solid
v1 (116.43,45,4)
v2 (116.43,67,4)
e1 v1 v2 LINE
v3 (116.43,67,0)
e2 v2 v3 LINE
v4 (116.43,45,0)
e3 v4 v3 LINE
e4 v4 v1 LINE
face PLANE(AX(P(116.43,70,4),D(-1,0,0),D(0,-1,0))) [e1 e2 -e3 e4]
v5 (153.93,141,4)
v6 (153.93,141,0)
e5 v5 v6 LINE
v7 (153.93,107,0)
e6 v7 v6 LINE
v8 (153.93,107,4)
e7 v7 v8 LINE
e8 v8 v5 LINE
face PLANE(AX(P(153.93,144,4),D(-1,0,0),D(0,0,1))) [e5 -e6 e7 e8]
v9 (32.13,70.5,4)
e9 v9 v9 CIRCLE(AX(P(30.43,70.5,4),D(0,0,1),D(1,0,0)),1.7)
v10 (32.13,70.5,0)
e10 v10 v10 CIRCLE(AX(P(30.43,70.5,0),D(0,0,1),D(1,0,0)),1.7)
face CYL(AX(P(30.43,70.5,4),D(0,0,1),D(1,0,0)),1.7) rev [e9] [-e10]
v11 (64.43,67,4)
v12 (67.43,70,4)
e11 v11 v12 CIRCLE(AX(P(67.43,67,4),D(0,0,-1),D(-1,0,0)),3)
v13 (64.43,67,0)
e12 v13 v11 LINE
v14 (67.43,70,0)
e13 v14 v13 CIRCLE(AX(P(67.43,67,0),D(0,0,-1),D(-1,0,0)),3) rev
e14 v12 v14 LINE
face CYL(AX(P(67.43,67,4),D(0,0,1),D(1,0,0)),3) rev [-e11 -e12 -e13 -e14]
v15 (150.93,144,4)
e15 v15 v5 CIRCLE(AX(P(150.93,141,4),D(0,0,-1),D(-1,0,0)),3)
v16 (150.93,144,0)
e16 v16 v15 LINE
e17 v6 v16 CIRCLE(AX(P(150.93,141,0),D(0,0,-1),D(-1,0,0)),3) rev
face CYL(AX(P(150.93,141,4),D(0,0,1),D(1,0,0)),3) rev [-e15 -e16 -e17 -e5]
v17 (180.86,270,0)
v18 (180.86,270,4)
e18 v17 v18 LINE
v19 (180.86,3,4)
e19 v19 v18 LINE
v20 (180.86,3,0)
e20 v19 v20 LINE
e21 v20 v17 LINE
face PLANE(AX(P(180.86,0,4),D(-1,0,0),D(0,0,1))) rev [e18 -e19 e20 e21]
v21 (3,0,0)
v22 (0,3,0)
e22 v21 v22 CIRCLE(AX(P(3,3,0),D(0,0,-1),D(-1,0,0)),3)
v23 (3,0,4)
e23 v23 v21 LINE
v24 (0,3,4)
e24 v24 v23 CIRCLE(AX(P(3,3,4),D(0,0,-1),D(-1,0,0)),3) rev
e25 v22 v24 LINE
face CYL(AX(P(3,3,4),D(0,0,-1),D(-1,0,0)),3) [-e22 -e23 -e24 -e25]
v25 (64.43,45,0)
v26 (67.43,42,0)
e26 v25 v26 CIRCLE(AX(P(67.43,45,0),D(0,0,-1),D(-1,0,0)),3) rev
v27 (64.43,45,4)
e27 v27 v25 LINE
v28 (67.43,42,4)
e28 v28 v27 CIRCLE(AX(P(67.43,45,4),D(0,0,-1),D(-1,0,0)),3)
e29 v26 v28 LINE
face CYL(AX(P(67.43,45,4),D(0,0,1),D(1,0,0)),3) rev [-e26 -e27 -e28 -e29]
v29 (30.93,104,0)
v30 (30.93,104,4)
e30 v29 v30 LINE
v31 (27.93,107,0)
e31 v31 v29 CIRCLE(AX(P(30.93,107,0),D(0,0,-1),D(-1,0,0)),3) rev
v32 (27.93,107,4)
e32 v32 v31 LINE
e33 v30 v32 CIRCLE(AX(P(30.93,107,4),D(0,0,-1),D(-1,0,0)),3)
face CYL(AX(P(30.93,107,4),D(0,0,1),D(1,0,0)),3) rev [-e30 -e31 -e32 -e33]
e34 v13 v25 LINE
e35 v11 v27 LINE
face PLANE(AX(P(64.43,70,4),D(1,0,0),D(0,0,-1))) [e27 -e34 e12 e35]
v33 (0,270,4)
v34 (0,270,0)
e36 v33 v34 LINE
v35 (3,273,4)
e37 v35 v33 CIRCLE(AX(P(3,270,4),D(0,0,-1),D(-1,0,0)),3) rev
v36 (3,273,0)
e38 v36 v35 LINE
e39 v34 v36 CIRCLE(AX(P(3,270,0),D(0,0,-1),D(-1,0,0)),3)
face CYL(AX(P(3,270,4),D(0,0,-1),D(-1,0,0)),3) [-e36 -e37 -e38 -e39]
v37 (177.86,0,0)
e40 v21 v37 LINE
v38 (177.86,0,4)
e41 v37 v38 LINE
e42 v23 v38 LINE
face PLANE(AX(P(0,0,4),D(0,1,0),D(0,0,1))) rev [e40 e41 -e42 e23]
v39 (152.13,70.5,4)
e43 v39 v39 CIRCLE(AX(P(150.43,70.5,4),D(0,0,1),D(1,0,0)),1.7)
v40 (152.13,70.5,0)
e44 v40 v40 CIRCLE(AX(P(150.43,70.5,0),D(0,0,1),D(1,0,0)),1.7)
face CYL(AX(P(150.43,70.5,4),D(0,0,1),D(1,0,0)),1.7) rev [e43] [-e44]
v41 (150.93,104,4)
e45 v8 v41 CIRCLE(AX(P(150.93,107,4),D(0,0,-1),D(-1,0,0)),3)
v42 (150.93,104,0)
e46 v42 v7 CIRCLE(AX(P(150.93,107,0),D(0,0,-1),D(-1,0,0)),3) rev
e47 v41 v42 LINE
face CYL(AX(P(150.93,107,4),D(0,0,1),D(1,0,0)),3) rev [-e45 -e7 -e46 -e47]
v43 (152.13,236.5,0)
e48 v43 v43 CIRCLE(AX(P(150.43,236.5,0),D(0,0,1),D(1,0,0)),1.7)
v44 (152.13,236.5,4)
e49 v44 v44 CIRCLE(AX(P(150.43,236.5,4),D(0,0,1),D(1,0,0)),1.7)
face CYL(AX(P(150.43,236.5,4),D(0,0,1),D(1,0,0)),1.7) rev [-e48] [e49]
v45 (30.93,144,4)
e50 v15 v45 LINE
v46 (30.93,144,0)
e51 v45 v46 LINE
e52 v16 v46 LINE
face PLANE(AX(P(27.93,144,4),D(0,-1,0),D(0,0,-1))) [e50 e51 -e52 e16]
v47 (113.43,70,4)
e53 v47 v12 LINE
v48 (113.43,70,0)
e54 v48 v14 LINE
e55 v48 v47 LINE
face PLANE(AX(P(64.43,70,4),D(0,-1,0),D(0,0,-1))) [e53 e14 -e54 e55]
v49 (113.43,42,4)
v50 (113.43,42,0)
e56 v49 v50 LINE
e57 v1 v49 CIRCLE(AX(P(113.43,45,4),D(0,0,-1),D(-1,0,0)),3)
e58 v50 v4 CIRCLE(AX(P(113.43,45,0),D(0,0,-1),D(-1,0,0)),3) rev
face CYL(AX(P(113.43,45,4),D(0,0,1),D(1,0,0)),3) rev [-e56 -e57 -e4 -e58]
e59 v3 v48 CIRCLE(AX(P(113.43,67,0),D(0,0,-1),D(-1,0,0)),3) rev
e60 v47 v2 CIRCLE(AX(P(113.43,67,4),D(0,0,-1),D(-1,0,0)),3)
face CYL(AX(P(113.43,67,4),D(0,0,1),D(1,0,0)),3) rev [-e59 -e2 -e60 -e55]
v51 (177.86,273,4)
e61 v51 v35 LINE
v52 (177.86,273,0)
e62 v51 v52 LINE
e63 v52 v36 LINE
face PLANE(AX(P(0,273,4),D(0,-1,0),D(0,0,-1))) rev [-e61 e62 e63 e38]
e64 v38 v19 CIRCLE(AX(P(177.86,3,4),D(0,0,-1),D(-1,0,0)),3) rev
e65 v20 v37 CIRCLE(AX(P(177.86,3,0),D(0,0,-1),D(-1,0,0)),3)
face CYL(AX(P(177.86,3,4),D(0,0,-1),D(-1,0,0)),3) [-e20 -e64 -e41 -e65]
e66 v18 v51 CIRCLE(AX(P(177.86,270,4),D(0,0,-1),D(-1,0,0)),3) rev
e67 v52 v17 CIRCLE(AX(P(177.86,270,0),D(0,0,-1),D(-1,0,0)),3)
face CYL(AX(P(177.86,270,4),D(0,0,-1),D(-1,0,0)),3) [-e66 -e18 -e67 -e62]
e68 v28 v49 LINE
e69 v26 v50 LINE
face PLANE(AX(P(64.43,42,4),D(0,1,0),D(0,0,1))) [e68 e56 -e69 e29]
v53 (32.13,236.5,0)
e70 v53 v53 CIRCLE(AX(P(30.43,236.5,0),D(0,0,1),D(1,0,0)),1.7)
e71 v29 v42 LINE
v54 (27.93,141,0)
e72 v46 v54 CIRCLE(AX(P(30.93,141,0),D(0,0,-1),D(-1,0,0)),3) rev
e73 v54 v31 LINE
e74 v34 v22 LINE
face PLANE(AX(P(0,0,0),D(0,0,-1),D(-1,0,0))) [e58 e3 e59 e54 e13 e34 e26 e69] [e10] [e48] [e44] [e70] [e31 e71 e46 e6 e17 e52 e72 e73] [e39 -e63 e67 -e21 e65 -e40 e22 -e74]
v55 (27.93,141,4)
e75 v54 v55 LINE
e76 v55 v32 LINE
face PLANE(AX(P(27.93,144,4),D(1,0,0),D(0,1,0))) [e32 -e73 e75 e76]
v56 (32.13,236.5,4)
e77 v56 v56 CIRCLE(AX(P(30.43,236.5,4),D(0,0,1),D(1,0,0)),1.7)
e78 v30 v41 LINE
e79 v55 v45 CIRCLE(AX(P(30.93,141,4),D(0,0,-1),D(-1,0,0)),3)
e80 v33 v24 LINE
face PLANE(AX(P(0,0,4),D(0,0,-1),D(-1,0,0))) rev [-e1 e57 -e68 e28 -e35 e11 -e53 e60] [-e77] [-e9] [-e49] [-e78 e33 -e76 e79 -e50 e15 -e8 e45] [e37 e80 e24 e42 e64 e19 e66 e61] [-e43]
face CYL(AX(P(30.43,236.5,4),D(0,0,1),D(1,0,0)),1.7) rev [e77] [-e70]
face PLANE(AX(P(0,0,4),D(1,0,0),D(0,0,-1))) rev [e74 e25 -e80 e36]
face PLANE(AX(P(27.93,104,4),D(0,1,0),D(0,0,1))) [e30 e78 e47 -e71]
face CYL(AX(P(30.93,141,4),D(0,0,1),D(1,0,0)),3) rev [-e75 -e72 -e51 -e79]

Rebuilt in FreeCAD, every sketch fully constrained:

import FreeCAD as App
import Part
import Sketcher


def edges_at(feature, points):
    """Names of the edges that pass closest to the given points."""
    edges = feature.Shape.Edges
    near = lambda p: min(range(len(edges)), key=lambda i: edges[i].distToShape(Part.Vertex(*p))[0])
    return sorted({f"Edge{near(p) + 1}" for p in points})

doc = App.newDocument("Part")
body = doc.addObject("PartDesign::Body", "Body")

sketch1 = body.newObject("Sketcher::SketchObject", "Sketch")
sketch1.AttachmentSupport = (doc.getObject("XY_Plane"), [""])
sketch1.MapMode = "FlatFace"
sketch1.addGeometry([
    Part.LineSegment(App.Vector(0, 273, 0), App.Vector(0, 0, 0)),
    Part.LineSegment(App.Vector(0, 0, 0), App.Vector(180.9, 0, 0)),
    Part.LineSegment(App.Vector(180.9, 0, 0), App.Vector(180.9, 273, 0)),
    Part.LineSegment(App.Vector(180.9, 273, 0), App.Vector(0, 273, 0)),
    Part.Circle(App.Vector(30.4, 70.5, 0), App.Vector(0, 0, 1), 1.5),
    Part.LineSegment(App.Vector(116.4, 42, 0), App.Vector(64.4, 42, 0)),
    Part.LineSegment(App.Vector(64.4, 42, 0), App.Vector(64.4, 70, 0)),
    Part.LineSegment(App.Vector(64.4, 70, 0), App.Vector(116.4, 70, 0)),
    Part.LineSegment(App.Vector(116.4, 70, 0), App.Vector(116.4, 42, 0)),
    Part.Circle(App.Vector(150.4, 70.5, 0), App.Vector(0, 0, 1), 1.5),
    Part.LineSegment(App.Vector(153.9, 104, 0), App.Vector(27.9, 104, 0)),
    Part.LineSegment(App.Vector(27.9, 104, 0), App.Vector(27.9, 144, 0)),
    Part.LineSegment(App.Vector(27.9, 144, 0), App.Vector(153.9, 144, 0)),
    Part.LineSegment(App.Vector(153.9, 144, 0), App.Vector(153.9, 104, 0)),
    Part.Circle(App.Vector(30.4, 236.5, 0), App.Vector(0, 0, 1), 1.5),
    Part.Circle(App.Vector(150.4, 236.5, 0), App.Vector(0, 0, 1), 1.5),
], False)
sketch1.addConstraint([
    Sketcher.Constraint("Coincident", 0, 2, 1, 1),
    Sketcher.Constraint("Coincident", 1, 2, 2, 1),
    Sketcher.Constraint("Coincident", 2, 2, 3, 1),
    Sketcher.Constraint("Coincident", 3, 2, 0, 1),
    Sketcher.Constraint("Coincident", 5, 2, 6, 1),
    Sketcher.Constraint("Coincident", 6, 2, 7, 1),
    Sketcher.Constraint("Coincident", 7, 2, 8, 1),
    Sketcher.Constraint("Coincident", 8, 2, 5, 1),
    Sketcher.Constraint("Coincident", 10, 2, 11, 1),
    Sketcher.Constraint("Coincident", 11, 2, 12, 1),
    Sketcher.Constraint("Coincident", 12, 2, 13, 1),
    Sketcher.Constraint("Coincident", 13, 2, 10, 1),
    Sketcher.Constraint("Vertical", 0),
    Sketcher.Constraint("Horizontal", 1),
    Sketcher.Constraint("Vertical", 2),
    Sketcher.Constraint("Horizontal", 3),
    Sketcher.Constraint("Horizontal", 5),
    Sketcher.Constraint("Vertical", 6),
    Sketcher.Constraint("Horizontal", 7),
    Sketcher.Constraint("Vertical", 8),
    Sketcher.Constraint("Horizontal", 10),
    Sketcher.Constraint("Vertical", 11),
    Sketcher.Constraint("Horizontal", 12),
    Sketcher.Constraint("Vertical", 13),
    Sketcher.Constraint("Coincident", 0, 2, -1, 1),
    Sketcher.Constraint("Equal", 4, 9),
    Sketcher.Constraint("Equal", 9, 14),
    Sketcher.Constraint("Equal", 14, 15),
    Sketcher.Constraint("Horizontal", 4, 3, 9, 3),
    Sketcher.Constraint("Horizontal", 14, 3, 15, 3),
    Sketcher.Constraint("Vertical", 4, 3, 14, 3),
    Sketcher.Constraint("Vertical", 9, 3, 15, 3),
    Sketcher.Constraint("Diameter", 4, 3.0),
    Sketcher.Constraint("DistanceX", 5, 2, 5, 1, 52.0),
    Sketcher.Constraint("DistanceX", 10, 2, 10, 1, 126.0),
    Sketcher.Constraint("DistanceY", 0, 2, 0, 1, 273.0),
    Sketcher.Constraint("DistanceY", 6, 1, 6, 2, 28.0),
    Sketcher.Constraint("DistanceY", 11, 1, 11, 2, 40.0),
    Sketcher.Constraint("DistanceY", -1, 1, 5, 2, 42.0),
    Sketcher.Constraint("DistanceY", -1, 1, 10, 2, 104.0),
    Sketcher.Constraint("DistanceX", 4, 3, 9, 3, 120.0),
    Sketcher.Constraint("DistanceY", 4, 3, 14, 3, 166.0),
    Sketcher.Constraint("DistanceX", 4, 3, 5, 2, 34.0),
    Sketcher.Constraint("DistanceX", 1, 1, 1, 2, 180.86),
    Sketcher.Constraint("DistanceY", -1, 1, 4, 3, 70.5),
    Sketcher.Constraint("DistanceX", 10, 2, 4, 3, 2.5),
    Sketcher.Constraint("DistanceX", -1, 1, 4, 3, 30.43),
])
pad1 = body.newObject("PartDesign::Pad", "Pad")
pad1.Profile = sketch1
pad1.Length = 4

sketch2 = body.newObject("Sketcher::SketchObject", "Sketch001")
sketch2.AttachmentSupport = (doc.getObject("XY_Plane"), [""])
sketch2.MapMode = "FlatFace"
sketch2.AttachmentOffset = App.Placement(App.Vector(0, 0, 4), App.Rotation())
sketch2.addGeometry([
    Part.Circle(App.Vector(30.4, 236.5, 0), App.Vector(0, 0, 1), 1.7),
    Part.Circle(App.Vector(150.4, 236.5, 0), App.Vector(0, 0, 1), 1.7),
    Part.Circle(App.Vector(150.4, 70.5, 0), App.Vector(0, 0, 1), 1.7),
    Part.Circle(App.Vector(30.4, 70.5, 0), App.Vector(0, 0, 1), 1.7),
], False)
sketch2.addConstraint([
    Sketcher.Constraint("Equal", 0, 1),
    Sketcher.Constraint("Equal", 1, 2),
    Sketcher.Constraint("Equal", 2, 3),
    Sketcher.Constraint("Horizontal", 0, 3, 1, 3),
    Sketcher.Constraint("Horizontal", 2, 3, 3, 3),
    Sketcher.Constraint("Vertical", 1, 3, 2, 3),
    Sketcher.Constraint("Vertical", 0, 3, 3, 3),
    Sketcher.Constraint("Diameter", 0, 3.4),
    Sketcher.Constraint("DistanceX", 0, 3, 1, 3, 120.0),
    Sketcher.Constraint("DistanceY", 2, 3, 1, 3, 166.0),
    Sketcher.Constraint("DistanceY", -1, 1, 0, 3, 236.5),
    Sketcher.Constraint("DistanceX", -1, 1, 0, 3, 30.43),
])
doc.recompute()
hole = body.newObject("PartDesign::Hole", "Hole")
hole.Profile = sketch2
hole.ThreadType = "None"
hole.Diameter = 3.4
hole.DepthType = "ThroughAll"
doc.recompute()

fillet = body.newObject("PartDesign::Fillet", "Fillet")
fillet.Base = (hole, edges_at(hole, [
    (64.43, 70, 2),
    (64.43, 42, 2),
    (116.43, 42, 2),
    (116.43, 70, 2),
    (27.93, 144, 2),
    (27.93, 104, 2),
    (153.93, 104, 2),
    (153.93, 144, 2),
    (0, 273, 2),
    (180.86, 273, 2),
    (180.86, 0, 2),
    (0, 0, 2),
]))
fillet.Radius = 3

doc.recompute()
